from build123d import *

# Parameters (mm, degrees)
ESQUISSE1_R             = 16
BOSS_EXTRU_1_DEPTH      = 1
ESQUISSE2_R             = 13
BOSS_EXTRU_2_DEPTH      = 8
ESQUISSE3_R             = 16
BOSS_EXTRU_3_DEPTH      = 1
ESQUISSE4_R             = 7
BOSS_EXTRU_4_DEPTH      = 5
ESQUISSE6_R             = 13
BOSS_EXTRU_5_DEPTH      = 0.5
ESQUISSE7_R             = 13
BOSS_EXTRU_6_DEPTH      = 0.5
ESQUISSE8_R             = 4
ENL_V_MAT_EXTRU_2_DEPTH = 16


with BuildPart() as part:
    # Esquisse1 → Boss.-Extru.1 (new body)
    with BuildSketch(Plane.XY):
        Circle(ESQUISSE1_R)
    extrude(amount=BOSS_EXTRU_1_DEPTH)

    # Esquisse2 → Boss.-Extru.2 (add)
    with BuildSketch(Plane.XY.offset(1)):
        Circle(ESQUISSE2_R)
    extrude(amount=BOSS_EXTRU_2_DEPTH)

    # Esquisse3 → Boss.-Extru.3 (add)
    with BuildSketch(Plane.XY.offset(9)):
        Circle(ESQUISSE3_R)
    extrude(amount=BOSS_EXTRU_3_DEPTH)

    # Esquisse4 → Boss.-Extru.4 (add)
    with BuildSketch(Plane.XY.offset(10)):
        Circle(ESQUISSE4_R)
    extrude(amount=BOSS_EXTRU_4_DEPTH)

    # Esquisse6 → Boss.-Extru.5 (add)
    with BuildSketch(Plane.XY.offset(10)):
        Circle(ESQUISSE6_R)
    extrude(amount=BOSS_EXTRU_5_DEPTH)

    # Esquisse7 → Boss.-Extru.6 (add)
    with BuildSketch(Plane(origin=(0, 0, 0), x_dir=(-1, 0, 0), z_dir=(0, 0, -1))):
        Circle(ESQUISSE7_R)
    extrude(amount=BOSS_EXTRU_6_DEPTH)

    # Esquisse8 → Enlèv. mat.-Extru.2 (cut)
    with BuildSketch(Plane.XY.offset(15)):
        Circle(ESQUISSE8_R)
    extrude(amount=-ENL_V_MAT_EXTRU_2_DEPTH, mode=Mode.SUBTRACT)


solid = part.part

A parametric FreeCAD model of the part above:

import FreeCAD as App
import Part
import Sketcher
from FreeCAD import Vector

doc = App.newDocument("Part")
body = doc.addObject("PartDesign::Body", "Body")

# Sketch on XY plane
sketch1 = body.newObject("Sketcher::SketchObject", "Sketch")
sketch1.AttachmentSupport = (doc.getObject("XY_Plane"), [""])
sketch1.MapMode = "FlatFace"
sketch1.addGeometry(Part.Circle(Vector(0, 0, 0), Vector(0, 0, 1), 16), False)
sketch1.addConstraint([
    Sketcher.Constraint("Coincident", 0, 3, -1, 1),
    Sketcher.Constraint("Diameter", 0, 32.0),
])
pad1 = body.newObject("PartDesign::Pad", "Pad")
pad1.Profile = sketch1
pad1.Length = 1

# Sketch on XY plane
sketch2 = body.newObject("Sketcher::SketchObject", "Sketch001")
sketch2.AttachmentSupport = (doc.getObject("XY_Plane"), [""])
sketch2.MapMode = "FlatFace"
sketch2.AttachmentOffset = App.Placement(Vector(0, 0, 1), App.Rotation())
sketch2.addGeometry(Part.Circle(Vector(0, 0, 0), Vector(0, 0, 1), 13), False)
sketch2.addConstraint([
    Sketcher.Constraint("Coincident", 0, 3, -1, 1),
    Sketcher.Constraint("Diameter", 0, 26.0),
])
pad2 = body.newObject("PartDesign::Pad", "Pad001")
pad2.Profile = sketch2
pad2.Length = 8

# Sketch on XY plane
sketch3 = body.newObject("Sketcher::SketchObject", "Sketch002")
sketch3.AttachmentSupport = (doc.getObject("XY_Plane"), [""])
sketch3.MapMode = "FlatFace"
sketch3.AttachmentOffset = App.Placement(Vector(0, 0, 9), App.Rotation())
sketch3.addGeometry(Part.Circle(Vector(0, 0, 0), Vector(0, 0, 1), 16), False)
sketch3.addConstraint([
    Sketcher.Constraint("Coincident", 0, 3, -1, 1),
    Sketcher.Constraint("Diameter", 0, 32.0),
])
pad3 = body.newObject("PartDesign::Pad", "Pad002")
pad3.Profile = sketch3
pad3.Length = 1

# Sketch on XY plane
sketch4 = body.newObject("Sketcher::SketchObject", "Sketch003")
sketch4.AttachmentSupport = (doc.getObject("XY_Plane"), [""])
sketch4.MapMode = "FlatFace"
sketch4.AttachmentOffset = App.Placement(Vector(0, 0, 10), App.Rotation())
sketch4.addGeometry(Part.Circle(Vector(0, 0, 0), Vector(0, 0, 1), 7), False)
sketch4.addConstraint([
    Sketcher.Constraint("Coincident", 0, 3, -1, 1),
    Sketcher.Constraint("Diameter", 0, 14.0),
])
pad4 = body.newObject("PartDesign::Pad", "Pad003")
pad4.Profile = sketch4
pad4.Length = 5

# Sketch on XY plane
sketch5 = body.newObject("Sketcher::SketchObject", "Sketch004")
sketch5.AttachmentSupport = (doc.getObject("XY_Plane"), [""])
sketch5.MapMode = "FlatFace"
sketch5.AttachmentOffset = App.Placement(Vector(0, 0, 10), App.Rotation())
sketch5.addGeometry(Part.Circle(Vector(0, 0, 0), Vector(0, 0, 1), 13), False)
sketch5.addConstraint([
    Sketcher.Constraint("Coincident", 0, 3, -1, 1),
    Sketcher.Constraint("Diameter", 0, 26.0),
])
pad5 = body.newObject("PartDesign::Pad", "Pad004")
pad5.Profile = sketch5
pad5.Length = 0.5

# Sketch on XY plane
sketch6 = body.newObject("Sketcher::SketchObject", "Sketch005")
sketch6.AttachmentSupport = (doc.getObject("XY_Plane"), [""])
sketch6.MapMode = "FlatFace"
sketch6.addGeometry(Part.Circle(Vector(0, 0, 0), Vector(0, 0, 1), 13), False)
sketch6.addConstraint([
    Sketcher.Constraint("Coincident", 0, 3, -1, 1),
    Sketcher.Constraint("Diameter", 0, 26.0),
])
pad6 = body.newObject("PartDesign::Pad", "Pad005")
pad6.Profile = sketch6
pad6.Length = 0.5
pad6.Reversed = True

# Sketch on XY plane
sketch7 = body.newObject("Sketcher::SketchObject", "Sketch006")
sketch7.AttachmentSupport = (doc.getObject("XY_Plane"), [""])
sketch7.MapMode = "FlatFace"
sketch7.AttachmentOffset = App.Placement(Vector(0, 0, 15), App.Rotation())
sketch7.addGeometry(Part.Circle(Vector(0, 0, 0), Vector(0, 0, 1), 4), False)
sketch7.addConstraint([
    Sketcher.Constraint("Coincident", 0, 3, -1, 1),
    Sketcher.Constraint("Diameter", 0, 8.0),
])
pocket1 = body.newObject("PartDesign::Pocket", "Pocket")
pocket1.Profile = sketch7
pocket1.Length = 16

doc.recompute()
